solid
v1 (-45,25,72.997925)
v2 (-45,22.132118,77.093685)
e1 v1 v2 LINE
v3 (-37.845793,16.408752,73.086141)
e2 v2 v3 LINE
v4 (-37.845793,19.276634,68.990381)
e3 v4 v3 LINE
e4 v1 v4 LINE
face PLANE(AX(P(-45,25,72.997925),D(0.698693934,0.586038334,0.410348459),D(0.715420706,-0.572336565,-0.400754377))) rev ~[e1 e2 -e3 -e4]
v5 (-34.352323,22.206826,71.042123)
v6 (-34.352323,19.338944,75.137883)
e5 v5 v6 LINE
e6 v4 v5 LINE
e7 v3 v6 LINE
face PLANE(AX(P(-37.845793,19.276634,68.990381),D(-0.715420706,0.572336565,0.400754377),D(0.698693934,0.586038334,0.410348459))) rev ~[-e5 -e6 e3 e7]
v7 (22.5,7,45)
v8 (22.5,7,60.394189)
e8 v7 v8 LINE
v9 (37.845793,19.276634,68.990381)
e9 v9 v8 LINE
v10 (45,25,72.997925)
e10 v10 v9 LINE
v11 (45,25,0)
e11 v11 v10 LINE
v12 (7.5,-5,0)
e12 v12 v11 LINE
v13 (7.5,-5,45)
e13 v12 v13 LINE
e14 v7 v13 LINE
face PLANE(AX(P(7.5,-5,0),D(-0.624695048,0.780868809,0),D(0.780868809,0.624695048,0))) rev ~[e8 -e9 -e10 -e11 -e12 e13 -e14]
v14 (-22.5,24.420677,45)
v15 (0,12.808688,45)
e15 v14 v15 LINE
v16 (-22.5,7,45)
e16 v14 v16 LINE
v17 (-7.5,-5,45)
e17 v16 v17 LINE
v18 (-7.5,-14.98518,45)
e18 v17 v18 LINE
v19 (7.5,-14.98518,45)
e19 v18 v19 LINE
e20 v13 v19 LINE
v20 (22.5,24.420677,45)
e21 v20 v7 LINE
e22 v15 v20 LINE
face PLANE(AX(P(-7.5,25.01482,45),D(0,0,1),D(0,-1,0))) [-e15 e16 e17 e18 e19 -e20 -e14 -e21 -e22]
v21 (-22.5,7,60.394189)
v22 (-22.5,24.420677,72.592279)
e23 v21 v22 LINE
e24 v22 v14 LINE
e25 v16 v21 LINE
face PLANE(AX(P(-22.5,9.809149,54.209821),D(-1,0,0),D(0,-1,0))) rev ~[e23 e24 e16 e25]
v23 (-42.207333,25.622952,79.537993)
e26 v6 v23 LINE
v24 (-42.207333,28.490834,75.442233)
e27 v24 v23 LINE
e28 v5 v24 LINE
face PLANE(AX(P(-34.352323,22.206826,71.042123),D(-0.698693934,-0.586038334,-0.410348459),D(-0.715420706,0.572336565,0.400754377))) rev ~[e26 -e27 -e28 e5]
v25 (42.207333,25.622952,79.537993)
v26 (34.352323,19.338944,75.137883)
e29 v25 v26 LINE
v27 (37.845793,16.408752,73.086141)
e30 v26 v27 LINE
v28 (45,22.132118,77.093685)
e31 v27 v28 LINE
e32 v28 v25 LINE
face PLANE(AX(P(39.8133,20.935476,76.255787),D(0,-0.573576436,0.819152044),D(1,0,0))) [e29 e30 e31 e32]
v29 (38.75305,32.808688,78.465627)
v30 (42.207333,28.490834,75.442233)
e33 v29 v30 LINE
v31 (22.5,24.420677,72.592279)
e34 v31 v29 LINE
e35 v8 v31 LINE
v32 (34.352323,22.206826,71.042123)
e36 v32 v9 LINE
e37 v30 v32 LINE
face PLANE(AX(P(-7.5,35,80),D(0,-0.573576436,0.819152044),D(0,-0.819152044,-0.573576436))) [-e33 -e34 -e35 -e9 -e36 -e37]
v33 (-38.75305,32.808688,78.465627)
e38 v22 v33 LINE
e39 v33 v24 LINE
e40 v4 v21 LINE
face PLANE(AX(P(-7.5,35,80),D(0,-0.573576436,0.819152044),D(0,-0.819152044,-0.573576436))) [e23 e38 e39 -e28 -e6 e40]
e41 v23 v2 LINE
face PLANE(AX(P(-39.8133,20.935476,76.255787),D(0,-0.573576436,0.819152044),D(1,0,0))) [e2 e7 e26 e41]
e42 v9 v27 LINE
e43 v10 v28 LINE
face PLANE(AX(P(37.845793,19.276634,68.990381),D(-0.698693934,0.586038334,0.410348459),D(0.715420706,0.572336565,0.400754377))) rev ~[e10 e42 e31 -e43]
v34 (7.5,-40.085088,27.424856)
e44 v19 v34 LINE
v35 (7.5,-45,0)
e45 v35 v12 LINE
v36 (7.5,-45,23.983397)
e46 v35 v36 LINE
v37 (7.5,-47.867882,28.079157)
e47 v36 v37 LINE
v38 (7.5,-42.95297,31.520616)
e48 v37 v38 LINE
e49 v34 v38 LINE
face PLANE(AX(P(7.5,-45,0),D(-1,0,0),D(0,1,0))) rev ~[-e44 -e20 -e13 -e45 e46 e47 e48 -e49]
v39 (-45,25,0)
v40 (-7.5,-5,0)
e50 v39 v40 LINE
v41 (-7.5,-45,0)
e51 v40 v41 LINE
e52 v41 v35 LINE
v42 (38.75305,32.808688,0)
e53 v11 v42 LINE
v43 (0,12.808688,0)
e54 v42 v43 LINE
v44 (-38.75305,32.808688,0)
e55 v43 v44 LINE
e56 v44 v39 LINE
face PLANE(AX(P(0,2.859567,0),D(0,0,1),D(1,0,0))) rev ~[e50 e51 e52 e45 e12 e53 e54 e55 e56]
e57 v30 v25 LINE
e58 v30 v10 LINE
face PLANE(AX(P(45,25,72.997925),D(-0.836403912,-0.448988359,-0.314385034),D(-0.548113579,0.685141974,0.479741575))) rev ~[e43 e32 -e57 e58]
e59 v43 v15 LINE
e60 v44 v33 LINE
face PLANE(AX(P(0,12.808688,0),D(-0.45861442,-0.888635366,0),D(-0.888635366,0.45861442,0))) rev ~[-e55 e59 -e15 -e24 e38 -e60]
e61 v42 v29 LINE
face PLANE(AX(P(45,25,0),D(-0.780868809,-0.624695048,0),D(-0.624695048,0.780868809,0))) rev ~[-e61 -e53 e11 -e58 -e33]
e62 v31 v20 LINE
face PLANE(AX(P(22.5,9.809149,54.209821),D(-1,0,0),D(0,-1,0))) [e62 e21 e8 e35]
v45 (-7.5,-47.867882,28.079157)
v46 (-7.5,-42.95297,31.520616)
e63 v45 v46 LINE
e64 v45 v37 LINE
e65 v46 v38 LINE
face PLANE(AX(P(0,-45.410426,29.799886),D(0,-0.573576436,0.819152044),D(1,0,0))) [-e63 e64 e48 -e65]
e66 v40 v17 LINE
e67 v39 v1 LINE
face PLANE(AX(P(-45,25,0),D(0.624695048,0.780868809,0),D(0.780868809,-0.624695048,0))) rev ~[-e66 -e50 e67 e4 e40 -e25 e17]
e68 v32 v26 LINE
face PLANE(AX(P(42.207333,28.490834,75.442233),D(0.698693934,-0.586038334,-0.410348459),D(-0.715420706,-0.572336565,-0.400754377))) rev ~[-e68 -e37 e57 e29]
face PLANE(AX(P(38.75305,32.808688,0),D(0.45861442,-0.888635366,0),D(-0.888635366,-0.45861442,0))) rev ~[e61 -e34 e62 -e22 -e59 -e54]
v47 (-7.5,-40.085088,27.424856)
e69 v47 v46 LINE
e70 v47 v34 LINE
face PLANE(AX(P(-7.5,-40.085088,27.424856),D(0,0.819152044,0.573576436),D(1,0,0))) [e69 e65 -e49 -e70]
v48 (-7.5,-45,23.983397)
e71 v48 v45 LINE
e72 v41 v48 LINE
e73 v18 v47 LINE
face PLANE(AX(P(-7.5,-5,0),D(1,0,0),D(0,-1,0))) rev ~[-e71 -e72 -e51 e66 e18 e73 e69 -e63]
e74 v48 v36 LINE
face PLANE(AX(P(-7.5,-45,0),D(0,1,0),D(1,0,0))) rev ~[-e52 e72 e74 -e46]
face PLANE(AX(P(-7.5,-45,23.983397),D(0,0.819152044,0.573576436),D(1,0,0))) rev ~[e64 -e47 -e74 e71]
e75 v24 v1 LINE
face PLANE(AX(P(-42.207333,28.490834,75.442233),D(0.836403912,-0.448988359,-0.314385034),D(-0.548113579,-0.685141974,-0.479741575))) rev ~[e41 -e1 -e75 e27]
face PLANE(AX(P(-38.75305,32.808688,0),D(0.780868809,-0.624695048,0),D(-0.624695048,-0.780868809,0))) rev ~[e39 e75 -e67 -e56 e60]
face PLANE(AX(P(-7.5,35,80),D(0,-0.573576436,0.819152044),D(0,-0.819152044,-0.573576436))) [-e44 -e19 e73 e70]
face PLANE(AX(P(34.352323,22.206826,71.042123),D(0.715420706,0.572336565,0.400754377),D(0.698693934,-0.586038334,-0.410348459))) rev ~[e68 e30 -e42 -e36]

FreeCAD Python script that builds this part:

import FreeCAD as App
import Part
import Sketcher

V = App.Vector
Q = App.Units.Quantity

doc = App.newDocument("Part")
body = doc.addObject("PartDesign::Body", "Body")

# Sketch on XY plane
sketch1 = doc.addObject("Sketcher::SketchObject", "Sketch")
body.addObject(sketch1)
sketch1.AttachmentSupport = (doc.XY_Plane, [""])
sketch1.MapMode = "FlatFace"
sketch1.addGeometry(Part.LineSegment(V(-38.75305, 32.808688, 0), V(-45, 25, 0)), False)
sketch1.addGeometry(Part.LineSegment(V(-45, 25, 0), V(-7.5, -5, 0)), False)
sketch1.addGeometry(Part.LineSegment(V(-7.5, -5, 0), V(-7.5, -45, 0)), False)
sketch1.addGeometry(Part.LineSegment(V(-7.5, -45, 0), V(7.5, -45, 0)), False)
sketch1.addGeometry(Part.LineSegment(V(7.5, -45, 0), V(7.5, -5, 0)), False)
sketch1.addGeometry(Part.LineSegment(V(7.5, -5, 0), V(45, 25, 0)), False)
sketch1.addGeometry(Part.LineSegment(V(45, 25, 0), V(38.75305, 32.808688, 0)), False)
sketch1.addGeometry(Part.LineSegment(V(38.75305, 32.808688, 0), V(0, 12.808688, 0)), False)
sketch1.addGeometry(Part.LineSegment(V(0, 12.808688, 0), V(-38.75305, 32.808688, 0)), False)
sketch1.addConstraint(Sketcher.Constraint("Coincident", 0, 2, 1, 1))
sketch1.addConstraint(Sketcher.Constraint("Coincident", 1, 2, 2, 1))
sketch1.addConstraint(Sketcher.Constraint("Coincident", 2, 2, 3, 1))
sketch1.addConstraint(Sketcher.Constraint("Coincident", 3, 2, 4, 1))
sketch1.addConstraint(Sketcher.Constraint("Coincident", 4, 2, 5, 1))
sketch1.addConstraint(Sketcher.Constraint("Coincident", 5, 2, 6, 1))
sketch1.addConstraint(Sketcher.Constraint("Coincident", 6, 2, 7, 1))
sketch1.addConstraint(Sketcher.Constraint("Coincident", 7, 2, 8, 1))
sketch1.addConstraint(Sketcher.Constraint("Coincident", 8, 2, 0, 1))
sketch1.addConstraint(Sketcher.Constraint("Vertical", 2))
sketch1.addConstraint(Sketcher.Constraint("Horizontal", 3))
sketch1.addConstraint(Sketcher.Constraint("Vertical", 4))
sketch1.addConstraint(Sketcher.Constraint("Symmetric", 1, 2, 4, 2, -2))
sketch1.addConstraint(Sketcher.Constraint("Symmetric", 0, 2, 5, 2, -2))
sketch1.addConstraint(Sketcher.Constraint("Symmetric", 6, 2, 8, 2, -2))
sketch1.addConstraint(Sketcher.Constraint("PointOnObject", 7, 2, -2))
sketch1.addConstraint(Sketcher.Constraint("Perpendicular", 0, 1))
sketch1.addConstraint(Sketcher.Constraint("DistanceX", 3, 1, 3, 2, 15.0))
sketch1.addConstraint(Sketcher.Constraint("DistanceY", 2, 2, 2, 1, 40.0))
sketch1.addConstraint(Sketcher.Constraint("Distance", 0, 10.0))
sketch1.addConstraint(Sketcher.Constraint("DistanceX", 0, 2, -1, 1, 45.0))
sketch1.addConstraint(Sketcher.Constraint("DistanceY", -1, 1, 0, 2, 25.0))
sketch1.addConstraint(Sketcher.Constraint("DistanceY", 1, 2, -1, 1, 5.0))
sketch1.addConstraint(Sketcher.Constraint("DistanceY", 7, 2, 6, 2, 20.0))
pad1 = doc.addObject("PartDesign::Pad", "Pad")
body.addObject(pad1)
pad1.Profile = sketch1
pad1.Length = 80

# Sketch on YZ plane
sketch2 = doc.addObject("Sketcher::SketchObject", "Sketch001")
body.addObject(sketch2)
sketch2.AttachmentSupport = (doc.YZ_Plane, [""])
sketch2.MapMode = "FlatFace"
sketch2.AttachmentOffset = App.Placement(V(0, 0, -7.5), App.Rotation())
sketch2.addGeometry(Part.LineSegment(V(-45, 23.983397, 0), V(-45, 80, 0)), False)
sketch2.addGeometry(Part.LineSegment(V(-45, 80, 0), V(35, 80, 0)), False)
sketch2.addGeometry(Part.LineSegment(V(35, 80, 0), V(-45, 23.983397, 0)), False)
sketch2.addConstraint(Sketcher.Constraint("Coincident", 0, 2, 1, 1))
sketch2.addConstraint(Sketcher.Constraint("Coincident", 1, 2, 2, 1))
sketch2.addConstraint(Sketcher.Constraint("Coincident", 2, 2, 0, 1))
sketch2.addConstraint(Sketcher.Constraint("Vertical", 0))
sketch2.addConstraint(Sketcher.Constraint("Horizontal", 1))
sketch2.addConstraint(Sketcher.Constraint("DistanceX", 1, 1, 1, 2, 80.0))
sketch2.addConstraint(Sketcher.Constraint("Angle", 2, Q("-145 deg")))
sketch2.addConstraint(Sketcher.Constraint("DistanceX", 0, 2, -1, 1, 45.0))
sketch2.addConstraint(Sketcher.Constraint("DistanceY", -1, 1, 0, 2, 80.0))
pocket1 = doc.addObject("PartDesign::Pocket", "Pocket")
body.addObject(pocket1)
pocket1.Profile = sketch2
pocket1.Type = "ThroughAll"
pocket1.Midplane = True

# Sketch on an angled plane
sketch3 = doc.addObject("Sketcher::SketchObject", "Sketch002")
body.addObject(sketch3)
sketch3.Placement = App.Placement(V(0, -26.073057, 37.236185), App.Rotation(V(1, 0, 0), V(0, 0.819152044, 0.573576436), V(0, -0.573576436, 0.819152044), "ZXY"))
sketch3.addGeometry(Part.LineSegment(V(-42.207333, 66.610212, 0), V(-45, 62.348691, 0)), False)
sketch3.addGeometry(Part.LineSegment(V(-45, 62.348691, 0), V(-37.845793, 55.361751, 0)), False)
sketch3.addGeometry(Part.LineSegment(V(-37.845793, 55.361751, 0), V(-34.352323, 58.938855, 0)), False)
sketch3.addGeometry(Part.LineSegment(V(-34.352323, 58.938855, 0), V(-42.207333, 66.610212, 0)), False)
sketch3.addGeometry(Part.LineSegment(V(37.845793, 55.361751, 0), V(45, 62.348691, 0)), False)
sketch3.addGeometry(Part.LineSegment(V(45, 62.348691, 0), V(42.207333, 66.610212, 0)), False)
sketch3.addGeometry(Part.LineSegment(V(42.207333, 66.610212, 0), V(34.352323, 58.938855, 0)), False)
sketch3.addGeometry(Part.LineSegment(V(34.352323, 58.938855, 0), V(37.845793, 55.361751, 0)), False)
sketch3.addGeometry(Part.LineSegment(V(-7.5, -17.105531, 0), V(-7.5, -23.105531, 0)), False)
sketch3.addGeometry(Part.LineSegment(V(-7.5, -23.105531, 0), V(7.5, -23.105531, 0)), False)
sketch3.addGeometry(Part.LineSegment(V(7.5, -23.105531, 0), V(7.5, -17.105531, 0)), False)
sketch3.addGeometry(Part.LineSegment(V(7.5, -17.105531, 0), V(-7.5, -17.105531, 0)), False)
sketch3.addConstraint(Sketcher.Constraint("Coincident", 0, 2, 1, 1))
sketch3.addConstraint(Sketcher.Constraint("Coincident", 1, 2, 2, 1))
sketch3.addConstraint(Sketcher.Constraint("Coincident", 2, 2, 3, 1))
sketch3.addConstraint(Sketcher.Constraint("Coincident", 3, 2, 0, 1))
sketch3.addConstraint(Sketcher.Constraint("Coincident", 4, 2, 5, 1))
sketch3.addConstraint(Sketcher.Constraint("Coincident", 5, 2, 6, 1))
sketch3.addConstraint(Sketcher.Constraint("Coincident", 6, 2, 7, 1))
sketch3.addConstraint(Sketcher.Constraint("Coincident", 7, 2, 4, 1))
sketch3.addConstraint(Sketcher.Constraint("Coincident", 8, 2, 9, 1))
sketch3.addConstraint(Sketcher.Constraint("Coincident", 9, 2, 10, 1))
sketch3.addConstraint(Sketcher.Constraint("Coincident", 10, 2, 11, 1))
sketch3.addConstraint(Sketcher.Constraint("Coincident", 11, 2, 8, 1))
sketch3.addConstraint(Sketcher.Constraint("Vertical", 8))
sketch3.addConstraint(Sketcher.Constraint("Horizontal", 9))
sketch3.addConstraint(Sketcher.Constraint("Vertical", 10))
sketch3.addConstraint(Sketcher.Constraint("Horizontal", 11))
sketch3.addConstraint(Sketcher.Constraint("Symmetric", 0, 2, 4, 2, -2))
sketch3.addConstraint(Sketcher.Constraint("Symmetric", 3, 2, 5, 2, -2))
sketch3.addConstraint(Sketcher.Constraint("Symmetric", 2, 2, 6, 2, -2))
sketch3.addConstraint(Sketcher.Constraint("Symmetric", 1, 2, 7, 2, -2))
sketch3.addConstraint(Sketcher.Constraint("Perpendicular", 1, 2))
sketch3.addConstraint(Sketcher.Constraint("Perpendicular", 2, 3))
sketch3.addConstraint(Sketcher.Constraint("DistanceX", 9, 1, 9, 2, 15.0))
sketch3.addConstraint(Sketcher.Constraint("DistanceY", 8, 2, 8, 1, 6.0))
sketch3.addConstraint(Sketcher.Constraint("Distance", 1, 10.0))
sketch3.addConstraint(Sketcher.Constraint("Distance", 2, 5.0))
sketch3.addConstraint(Sketcher.Constraint("DistanceX", 0, 2, -1, 1, 45.0))
sketch3.addConstraint(Sketcher.Constraint("DistanceX", 8, 2, -1, 1, 7.5))
sketch3.addConstraint(Sketcher.Constraint("Distance", 0, 5.095052))
sketch3.addConstraint(Sketcher.Constraint("DistanceY", -1, 1, 0, 2, 62.348691))
sketch3.addConstraint(Sketcher.Constraint("DistanceY", -1, 1, 1, 2, 55.361751))
sketch3.addConstraint(Sketcher.Constraint("DistanceY", 8, 2, -1, 1, 23.105531))
pad2 = doc.addObject("PartDesign::Pad", "Pad001")
body.addObject(pad2)
pad2.Profile = sketch3
pad2.Length = 5

# Sketch on YZ plane
sketch4 = doc.addObject("Sketcher::SketchObject", "Sketch003")
body.addObject(sketch4)
sketch4.AttachmentSupport = (doc.YZ_Plane, [""])
sketch4.MapMode = "FlatFace"
sketch4.AttachmentOffset = App.Placement(V(0, 0, -7.5), App.Rotation())
sketch4.addGeometry(Part.LineSegment(V(25.01482, 45, 0), V(-14.98518, 45, 0)), False)
sketch4.addGeometry(Part.LineSegment(V(-14.98518, 45, 0), V(25.01482, 73.008302, 0)), False)
sketch4.addGeometry(Part.LineSegment(V(25.01482, 73.008302, 0), V(25.01482, 45, 0)), False)
sketch4.addConstraint(Sketcher.Constraint("Coincident", 0, 2, 1, 1))
sketch4.addConstraint(Sketcher.Constraint("Coincident", 1, 2, 2, 1))
sketch4.addConstraint(Sketcher.Constraint("Coincident", 2, 2, 0, 1))
sketch4.addConstraint(Sketcher.Constraint("Horizontal", 0))
sketch4.addConstraint(Sketcher.Constraint("Vertical", 2))
sketch4.addConstraint(Sketcher.Constraint("DistanceX", 0, 2, 0, 1, 40.0))
sketch4.addConstraint(Sketcher.Constraint("Angle", 1, Q("35 deg")))
sketch4.addConstraint(Sketcher.Constraint("DistanceY", -1, 1, 0, 2, 45.0))
sketch4.addConstraint(Sketcher.Constraint("DistanceX", 0, 2, -1, 1, 14.98518))
pocket2 = doc.addObject("PartDesign::Pocket", "Pocket001")
body.addObject(pocket2)
pocket2.Profile = sketch4
pocket2.Type = "TwoLengths"
pocket2.Length = 30
pocket2.Length2 = 15
pocket2.Reversed = True

doc.recompute()
